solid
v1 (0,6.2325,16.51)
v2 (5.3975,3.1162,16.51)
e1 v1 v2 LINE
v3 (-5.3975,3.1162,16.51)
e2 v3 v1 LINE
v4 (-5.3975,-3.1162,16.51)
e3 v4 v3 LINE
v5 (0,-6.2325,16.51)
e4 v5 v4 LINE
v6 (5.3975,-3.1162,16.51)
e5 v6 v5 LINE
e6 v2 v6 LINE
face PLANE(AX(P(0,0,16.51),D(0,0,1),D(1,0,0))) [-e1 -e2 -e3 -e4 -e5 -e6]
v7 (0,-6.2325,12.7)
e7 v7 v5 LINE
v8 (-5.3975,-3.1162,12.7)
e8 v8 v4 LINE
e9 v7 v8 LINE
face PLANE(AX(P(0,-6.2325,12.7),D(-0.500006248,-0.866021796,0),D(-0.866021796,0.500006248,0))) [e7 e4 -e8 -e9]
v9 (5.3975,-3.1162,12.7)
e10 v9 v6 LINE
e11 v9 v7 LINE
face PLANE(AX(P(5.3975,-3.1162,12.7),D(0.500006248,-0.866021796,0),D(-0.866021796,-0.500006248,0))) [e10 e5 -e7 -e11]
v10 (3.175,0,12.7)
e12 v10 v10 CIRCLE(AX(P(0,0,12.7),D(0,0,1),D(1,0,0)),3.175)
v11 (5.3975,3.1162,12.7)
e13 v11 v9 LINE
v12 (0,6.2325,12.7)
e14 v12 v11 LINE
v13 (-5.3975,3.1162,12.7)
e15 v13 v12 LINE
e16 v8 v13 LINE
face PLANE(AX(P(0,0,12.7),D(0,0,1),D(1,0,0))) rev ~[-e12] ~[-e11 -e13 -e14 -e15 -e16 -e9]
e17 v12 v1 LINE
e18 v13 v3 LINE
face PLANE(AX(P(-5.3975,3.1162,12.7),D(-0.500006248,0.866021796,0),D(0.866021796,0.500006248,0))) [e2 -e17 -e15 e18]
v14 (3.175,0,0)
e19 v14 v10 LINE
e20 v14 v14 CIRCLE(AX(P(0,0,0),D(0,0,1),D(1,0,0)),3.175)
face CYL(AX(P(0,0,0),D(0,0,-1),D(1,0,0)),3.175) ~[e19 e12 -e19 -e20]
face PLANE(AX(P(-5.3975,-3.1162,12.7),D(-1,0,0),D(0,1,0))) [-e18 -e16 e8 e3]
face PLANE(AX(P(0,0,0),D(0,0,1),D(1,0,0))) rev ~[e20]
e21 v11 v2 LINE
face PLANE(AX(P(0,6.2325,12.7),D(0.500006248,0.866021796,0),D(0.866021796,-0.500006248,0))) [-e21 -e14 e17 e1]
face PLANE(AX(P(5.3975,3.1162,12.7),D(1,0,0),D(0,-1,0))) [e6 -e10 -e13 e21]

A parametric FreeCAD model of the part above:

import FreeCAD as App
import Part
import Sketcher
Q = App.Units.Quantity

doc = App.newDocument("Part")
body = doc.addObject("PartDesign::Body", "Body")

sketch1 = body.newObject("Sketcher::SketchObject", "Sketch")
sketch1.AttachmentSupport = (doc.getObject("XY_Plane"), [""])
sketch1.MapMode = "FlatFace"
sketch1.addGeometry(Part.Circle(App.Vector(0, 0, 0), App.Vector(0, 0, 1), 3.2), False)
sketch1.addConstraint(Sketcher.Constraint("Coincident", 0, 3, -1, 1))
sketch1.addConstraint(Sketcher.Constraint("Diameter", 0, Q("0.25 in")))
pad1 = body.newObject("PartDesign::Pad", "Pad")
pad1.Profile = sketch1
pad1.Length = Q("0.5 in")

sketch2 = body.newObject("Sketcher::SketchObject", "Sketch001")
sketch2.AttachmentSupport = (doc.getObject("XY_Plane"), [""])
sketch2.MapMode = "FlatFace"
sketch2.AttachmentOffset = App.Placement(App.Vector(0, 0, 0.5 * 25.4), App.Rotation())
sketch2.addGeometry(Part.LineSegment(App.Vector(5, 3, 0), App.Vector(0, 6, 0)), False)
sketch2.addGeometry(Part.LineSegment(App.Vector(0, 6, 0), App.Vector(-5, 3, 0)), False)
sketch2.addGeometry(Part.LineSegment(App.Vector(-5, 3, 0), App.Vector(-5, -3, 0)), False)
sketch2.addGeometry(Part.LineSegment(App.Vector(-5, -3, 0), App.Vector(0, -6, 0)), False)
sketch2.addGeometry(Part.LineSegment(App.Vector(0, -6, 0), App.Vector(5, -3, 0)), False)
sketch2.addGeometry(Part.LineSegment(App.Vector(5, -3, 0), App.Vector(5, 3, 0)), False)
sketch2.addConstraint(Sketcher.Constraint("Coincident", 0, 2, 1, 1))
sketch2.addConstraint(Sketcher.Constraint("Coincident", 1, 2, 2, 1))
sketch2.addConstraint(Sketcher.Constraint("Coincident", 2, 2, 3, 1))
sketch2.addConstraint(Sketcher.Constraint("Coincident", 3, 2, 4, 1))
sketch2.addConstraint(Sketcher.Constraint("Coincident", 4, 2, 5, 1))
sketch2.addConstraint(Sketcher.Constraint("Coincident", 5, 2, 0, 1))
sketch2.addConstraint(Sketcher.Constraint("Vertical", 2))
sketch2.addConstraint(Sketcher.Constraint("Vertical", 5))
sketch2.addConstraint(Sketcher.Constraint("Symmetric", 0, 2, 3, 2, -1, 1))
sketch2.addConstraint(Sketcher.Constraint("Symmetric", 1, 2, 4, 2, -1, 1))
sketch2.addConstraint(Sketcher.Constraint("PointOnObject", 0, 2, -2))
sketch2.addConstraint(Sketcher.Constraint("Parallel", 0, 3))
sketch2.addConstraint(Sketcher.Constraint("Horizontal", 2, 2, 4, 2))
sketch2.addConstraint(Sketcher.Constraint("Angle", 0, Q("149.9996 deg")))
sketch2.addConstraint(Sketcher.Constraint("DistanceX", 2, 2, 4, 2, Q("0.425 in")))
sketch2.addConstraint(Sketcher.Constraint("DistanceY", 2, 2, 2, 1, Q("6.2324 mm")))
pad2 = body.newObject("PartDesign::Pad", "Pad001")
pad2.Profile = sketch2
pad2.Length = Q("0.15 in")

doc.recompute()
